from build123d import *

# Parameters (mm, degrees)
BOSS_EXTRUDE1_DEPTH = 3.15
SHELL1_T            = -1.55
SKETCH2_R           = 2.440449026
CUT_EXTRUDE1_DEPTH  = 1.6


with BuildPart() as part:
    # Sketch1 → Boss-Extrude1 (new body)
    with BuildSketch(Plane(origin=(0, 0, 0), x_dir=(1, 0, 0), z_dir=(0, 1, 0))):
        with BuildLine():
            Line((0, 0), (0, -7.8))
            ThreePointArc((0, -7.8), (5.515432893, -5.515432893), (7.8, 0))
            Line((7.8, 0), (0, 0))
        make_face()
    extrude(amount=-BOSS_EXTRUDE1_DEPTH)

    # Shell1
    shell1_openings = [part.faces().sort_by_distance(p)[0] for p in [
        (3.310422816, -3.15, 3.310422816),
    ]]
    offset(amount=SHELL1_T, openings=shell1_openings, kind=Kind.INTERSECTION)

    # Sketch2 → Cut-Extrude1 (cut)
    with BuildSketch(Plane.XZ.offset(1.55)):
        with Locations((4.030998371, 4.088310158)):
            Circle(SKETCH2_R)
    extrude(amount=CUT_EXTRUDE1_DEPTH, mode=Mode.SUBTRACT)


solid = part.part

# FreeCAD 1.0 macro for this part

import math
import FreeCAD as App
import Part
import Sketcher


def faces_at(feature, points):
    """Names of the faces that lie closest to the given points."""
    faces = feature.Shape.Faces
    near = lambda p: min(range(len(faces)), key=lambda i: faces[i].distToShape(Part.Vertex(*p))[0])
    return sorted({f"Face{near(p) + 1}" for p in points})

doc = App.newDocument("Part")
body = doc.addObject("PartDesign::Body", "Body")

# Sketch on XZ plane
sketch1 = body.newObject("Sketcher::SketchObject", "Sketch")
sketch1.AttachmentSupport = (doc.getObject("XZ_Plane"), [""])
sketch1.MapMode = "FlatFace"
sketch1.addGeometry([
    Part.LineSegment(App.Vector(0, 0, 0), App.Vector(0, 7.8, 0)),
    Part.ArcOfCircle(Part.Circle(App.Vector(0, 0, 0), App.Vector(0, 0, 1), 7.8), math.radians(0), math.radians(90)),
    Part.LineSegment(App.Vector(7.8, 0, 0), App.Vector(0, 0, 0)),
], False)
sketch1.addConstraint([
    Sketcher.Constraint("Coincident", 0, 2, 1, 2),
    Sketcher.Constraint("Coincident", 1, 1, 2, 1),
    Sketcher.Constraint("Coincident", 2, 2, 0, 1),
    Sketcher.Constraint("Vertical", 0),
    Sketcher.Constraint("Horizontal", 2),
    Sketcher.Constraint("Coincident", 1, 3, -1, 1),
    Sketcher.Constraint("Coincident", 2, 2, -1, 1),
    Sketcher.Constraint("Radius", 1, 7.8),
])
pad1 = body.newObject("PartDesign::Pad", "Pad")
pad1.Profile = sketch1
pad1.Length = 3.15
doc.recompute()

thickness = body.newObject("PartDesign::Thickness", "Thickness")
thickness.Base = (pad1, faces_at(pad1, [(3.9, -3.15, 3.9)]))
thickness.Value = 1.55
thickness.Reversed = True
thickness.Join = "Intersection"

# Sketch on XZ plane
sketch2 = body.newObject("Sketcher::SketchObject", "Sketch001")
sketch2.AttachmentSupport = (doc.getObject("XZ_Plane"), [""])
sketch2.MapMode = "FlatFace"
sketch2.AttachmentOffset = App.Placement(App.Vector(0, 0, 1.55), App.Rotation())
sketch2.addGeometry(Part.Circle(App.Vector(4.030998, 4.08831, 0), App.Vector(0, 0, 1), 2.440449), False)
sketch2.addConstraint([
    Sketcher.Constraint("Diameter", 0, 4.880898),
    Sketcher.Constraint("DistanceX", -1, 1, 0, 3, 4.030998),
    Sketcher.Constraint("DistanceY", -1, 1, 0, 3, 4.08831),
])
pocket1 = body.newObject("PartDesign::Pocket", "Pocket")
pocket1.Profile = sketch2
pocket1.Length = 1.6
pocket1.Reversed = True

doc.recompute()
